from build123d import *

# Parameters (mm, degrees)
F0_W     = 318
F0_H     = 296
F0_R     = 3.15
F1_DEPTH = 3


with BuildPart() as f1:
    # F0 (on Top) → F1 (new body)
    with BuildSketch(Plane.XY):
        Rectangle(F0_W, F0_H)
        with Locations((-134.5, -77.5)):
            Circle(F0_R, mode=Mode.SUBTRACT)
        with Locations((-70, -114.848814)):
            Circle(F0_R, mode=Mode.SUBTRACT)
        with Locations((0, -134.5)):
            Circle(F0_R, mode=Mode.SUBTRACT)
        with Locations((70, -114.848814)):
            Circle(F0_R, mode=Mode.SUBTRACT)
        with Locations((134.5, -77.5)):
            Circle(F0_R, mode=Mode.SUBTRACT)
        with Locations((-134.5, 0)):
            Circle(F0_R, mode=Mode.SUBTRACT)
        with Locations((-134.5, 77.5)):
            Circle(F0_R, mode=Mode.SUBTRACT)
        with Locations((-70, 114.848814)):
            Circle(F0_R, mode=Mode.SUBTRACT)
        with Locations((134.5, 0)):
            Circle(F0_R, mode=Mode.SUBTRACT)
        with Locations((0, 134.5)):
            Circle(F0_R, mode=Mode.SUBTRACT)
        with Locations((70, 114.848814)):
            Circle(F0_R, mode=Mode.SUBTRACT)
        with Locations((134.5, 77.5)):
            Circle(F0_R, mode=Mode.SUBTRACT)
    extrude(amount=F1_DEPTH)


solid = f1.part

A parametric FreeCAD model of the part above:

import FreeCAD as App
import Part
import Sketcher

V = App.Vector

doc = App.newDocument("Part")
body = doc.addObject("PartDesign::Body", "Body")

sketch1 = doc.addObject("Sketcher::SketchObject", "Sketch")
body.addObject(sketch1)
sketch1.AttachmentSupport = (doc.XY_Plane, [""])
sketch1.MapMode = "FlatFace"
sketch1.addGeometry([
    Part.LineSegment(V(-159, 148, 0), V(-159, -148, 0)),
    Part.LineSegment(V(-159, -148, 0), V(159, -148, 0)),
    Part.LineSegment(V(159, -148, 0), V(159, 148, 0)),
    Part.LineSegment(V(159, 148, 0), V(-159, 148, 0)),
    Part.Circle(V(-70, -114.8, 0), V(0, 0, 1), 3.1),
    Part.Circle(V(-134.5, -77.5, 0), V(0, 0, 1), 3.1),
    Part.Circle(V(0, -134.5, 0), V(0, 0, 1), 3.1),
    Part.Circle(V(70, -114.8, 0), V(0, 0, 1), 3.1),
    Part.Circle(V(134.5, -77.5, 0), V(0, 0, 1), 3.1),
    Part.Circle(V(-134.5, 0, 0), V(0, 0, 1), 3.1),
    Part.Circle(V(-134.5, 77.5, 0), V(0, 0, 1), 3.1),
    Part.Circle(V(-70, 114.8, 0), V(0, 0, 1), 3.1),
    Part.Circle(V(134.5, 0, 0), V(0, 0, 1), 3.1),
    Part.Circle(V(0, 134.5, 0), V(0, 0, 1), 3.1),
    Part.Circle(V(134.5, 77.5, 0), V(0, 0, 1), 3.1),
    Part.Circle(V(70, 114.8, 0), V(0, 0, 1), 3.1),
], False)
sketch1.addConstraint([
    Sketcher.Constraint("Coincident", 0, 2, 1, 1),
    Sketcher.Constraint("Coincident", 1, 2, 2, 1),
    Sketcher.Constraint("Coincident", 2, 2, 3, 1),
    Sketcher.Constraint("Coincident", 3, 2, 0, 1),
    Sketcher.Constraint("Vertical", 0),
    Sketcher.Constraint("Horizontal", 1),
    Sketcher.Constraint("Vertical", 2),
    Sketcher.Constraint("Horizontal", 3),
    Sketcher.Constraint("Equal", 4, 5),
    Sketcher.Constraint("Equal", 5, 6),
    Sketcher.Constraint("Equal", 6, 7),
    Sketcher.Constraint("Equal", 7, 8),
    Sketcher.Constraint("Equal", 8, 9),
    Sketcher.Constraint("Equal", 9, 10),
    Sketcher.Constraint("Equal", 10, 11),
    Sketcher.Constraint("Equal", 11, 12),
    Sketcher.Constraint("Equal", 12, 13),
    Sketcher.Constraint("Equal", 13, 14),
    Sketcher.Constraint("Equal", 14, 15),
    Sketcher.Constraint("Symmetric", 8, 3, 10, 3, -1, 1),
    Sketcher.Constraint("Symmetric", 7, 3, 11, 3, -1, 1),
    Sketcher.Constraint("Symmetric", 9, 3, 12, 3, -1, 1),
    Sketcher.Constraint("Symmetric", 6, 3, 13, 3, -1, 1),
    Sketcher.Constraint("Symmetric", 5, 3, 14, 3, -1, 1),
    Sketcher.Constraint("Symmetric", 4, 3, 15, 3, -1, 1),
    Sketcher.Constraint("Symmetric", 0, 2, 2, 2, -1, 1),
    Sketcher.Constraint("Symmetric", 4, 3, 7, 3, -2),
    Sketcher.Constraint("Symmetric", 5, 3, 8, 3, -2),
    Sketcher.Constraint("PointOnObject", 6, 3, -2),
    Sketcher.Constraint("PointOnObject", 9, 3, -1),
    Sketcher.Constraint("Vertical", 5, 3, 9, 3),
    Sketcher.Constraint("Diameter", 4, 6.3),
    Sketcher.Constraint("DistanceX", 1, 1, 1, 2, 318.0),
    Sketcher.Constraint("DistanceY", 0, 2, 0, 1, 296.0),
    Sketcher.Constraint("DistanceX", 4, 3, -1, 1, 70.0),
    Sketcher.Constraint("DistanceY", 6, 3, 5, 3, 57.0),
    Sketcher.Constraint("DistanceX", 5, 3, 8, 3, 269.0),
    Sketcher.Constraint("DistanceY", 5, 3, 10, 3, 155.0),
    Sketcher.Constraint("DistanceY", 4, 3, 11, 3, 229.697628),
])
pad1 = doc.addObject("PartDesign::Pad", "Pad")
body.addObject(pad1)
pad1.Profile = sketch1
pad1.Length = 3

doc.recompute()
